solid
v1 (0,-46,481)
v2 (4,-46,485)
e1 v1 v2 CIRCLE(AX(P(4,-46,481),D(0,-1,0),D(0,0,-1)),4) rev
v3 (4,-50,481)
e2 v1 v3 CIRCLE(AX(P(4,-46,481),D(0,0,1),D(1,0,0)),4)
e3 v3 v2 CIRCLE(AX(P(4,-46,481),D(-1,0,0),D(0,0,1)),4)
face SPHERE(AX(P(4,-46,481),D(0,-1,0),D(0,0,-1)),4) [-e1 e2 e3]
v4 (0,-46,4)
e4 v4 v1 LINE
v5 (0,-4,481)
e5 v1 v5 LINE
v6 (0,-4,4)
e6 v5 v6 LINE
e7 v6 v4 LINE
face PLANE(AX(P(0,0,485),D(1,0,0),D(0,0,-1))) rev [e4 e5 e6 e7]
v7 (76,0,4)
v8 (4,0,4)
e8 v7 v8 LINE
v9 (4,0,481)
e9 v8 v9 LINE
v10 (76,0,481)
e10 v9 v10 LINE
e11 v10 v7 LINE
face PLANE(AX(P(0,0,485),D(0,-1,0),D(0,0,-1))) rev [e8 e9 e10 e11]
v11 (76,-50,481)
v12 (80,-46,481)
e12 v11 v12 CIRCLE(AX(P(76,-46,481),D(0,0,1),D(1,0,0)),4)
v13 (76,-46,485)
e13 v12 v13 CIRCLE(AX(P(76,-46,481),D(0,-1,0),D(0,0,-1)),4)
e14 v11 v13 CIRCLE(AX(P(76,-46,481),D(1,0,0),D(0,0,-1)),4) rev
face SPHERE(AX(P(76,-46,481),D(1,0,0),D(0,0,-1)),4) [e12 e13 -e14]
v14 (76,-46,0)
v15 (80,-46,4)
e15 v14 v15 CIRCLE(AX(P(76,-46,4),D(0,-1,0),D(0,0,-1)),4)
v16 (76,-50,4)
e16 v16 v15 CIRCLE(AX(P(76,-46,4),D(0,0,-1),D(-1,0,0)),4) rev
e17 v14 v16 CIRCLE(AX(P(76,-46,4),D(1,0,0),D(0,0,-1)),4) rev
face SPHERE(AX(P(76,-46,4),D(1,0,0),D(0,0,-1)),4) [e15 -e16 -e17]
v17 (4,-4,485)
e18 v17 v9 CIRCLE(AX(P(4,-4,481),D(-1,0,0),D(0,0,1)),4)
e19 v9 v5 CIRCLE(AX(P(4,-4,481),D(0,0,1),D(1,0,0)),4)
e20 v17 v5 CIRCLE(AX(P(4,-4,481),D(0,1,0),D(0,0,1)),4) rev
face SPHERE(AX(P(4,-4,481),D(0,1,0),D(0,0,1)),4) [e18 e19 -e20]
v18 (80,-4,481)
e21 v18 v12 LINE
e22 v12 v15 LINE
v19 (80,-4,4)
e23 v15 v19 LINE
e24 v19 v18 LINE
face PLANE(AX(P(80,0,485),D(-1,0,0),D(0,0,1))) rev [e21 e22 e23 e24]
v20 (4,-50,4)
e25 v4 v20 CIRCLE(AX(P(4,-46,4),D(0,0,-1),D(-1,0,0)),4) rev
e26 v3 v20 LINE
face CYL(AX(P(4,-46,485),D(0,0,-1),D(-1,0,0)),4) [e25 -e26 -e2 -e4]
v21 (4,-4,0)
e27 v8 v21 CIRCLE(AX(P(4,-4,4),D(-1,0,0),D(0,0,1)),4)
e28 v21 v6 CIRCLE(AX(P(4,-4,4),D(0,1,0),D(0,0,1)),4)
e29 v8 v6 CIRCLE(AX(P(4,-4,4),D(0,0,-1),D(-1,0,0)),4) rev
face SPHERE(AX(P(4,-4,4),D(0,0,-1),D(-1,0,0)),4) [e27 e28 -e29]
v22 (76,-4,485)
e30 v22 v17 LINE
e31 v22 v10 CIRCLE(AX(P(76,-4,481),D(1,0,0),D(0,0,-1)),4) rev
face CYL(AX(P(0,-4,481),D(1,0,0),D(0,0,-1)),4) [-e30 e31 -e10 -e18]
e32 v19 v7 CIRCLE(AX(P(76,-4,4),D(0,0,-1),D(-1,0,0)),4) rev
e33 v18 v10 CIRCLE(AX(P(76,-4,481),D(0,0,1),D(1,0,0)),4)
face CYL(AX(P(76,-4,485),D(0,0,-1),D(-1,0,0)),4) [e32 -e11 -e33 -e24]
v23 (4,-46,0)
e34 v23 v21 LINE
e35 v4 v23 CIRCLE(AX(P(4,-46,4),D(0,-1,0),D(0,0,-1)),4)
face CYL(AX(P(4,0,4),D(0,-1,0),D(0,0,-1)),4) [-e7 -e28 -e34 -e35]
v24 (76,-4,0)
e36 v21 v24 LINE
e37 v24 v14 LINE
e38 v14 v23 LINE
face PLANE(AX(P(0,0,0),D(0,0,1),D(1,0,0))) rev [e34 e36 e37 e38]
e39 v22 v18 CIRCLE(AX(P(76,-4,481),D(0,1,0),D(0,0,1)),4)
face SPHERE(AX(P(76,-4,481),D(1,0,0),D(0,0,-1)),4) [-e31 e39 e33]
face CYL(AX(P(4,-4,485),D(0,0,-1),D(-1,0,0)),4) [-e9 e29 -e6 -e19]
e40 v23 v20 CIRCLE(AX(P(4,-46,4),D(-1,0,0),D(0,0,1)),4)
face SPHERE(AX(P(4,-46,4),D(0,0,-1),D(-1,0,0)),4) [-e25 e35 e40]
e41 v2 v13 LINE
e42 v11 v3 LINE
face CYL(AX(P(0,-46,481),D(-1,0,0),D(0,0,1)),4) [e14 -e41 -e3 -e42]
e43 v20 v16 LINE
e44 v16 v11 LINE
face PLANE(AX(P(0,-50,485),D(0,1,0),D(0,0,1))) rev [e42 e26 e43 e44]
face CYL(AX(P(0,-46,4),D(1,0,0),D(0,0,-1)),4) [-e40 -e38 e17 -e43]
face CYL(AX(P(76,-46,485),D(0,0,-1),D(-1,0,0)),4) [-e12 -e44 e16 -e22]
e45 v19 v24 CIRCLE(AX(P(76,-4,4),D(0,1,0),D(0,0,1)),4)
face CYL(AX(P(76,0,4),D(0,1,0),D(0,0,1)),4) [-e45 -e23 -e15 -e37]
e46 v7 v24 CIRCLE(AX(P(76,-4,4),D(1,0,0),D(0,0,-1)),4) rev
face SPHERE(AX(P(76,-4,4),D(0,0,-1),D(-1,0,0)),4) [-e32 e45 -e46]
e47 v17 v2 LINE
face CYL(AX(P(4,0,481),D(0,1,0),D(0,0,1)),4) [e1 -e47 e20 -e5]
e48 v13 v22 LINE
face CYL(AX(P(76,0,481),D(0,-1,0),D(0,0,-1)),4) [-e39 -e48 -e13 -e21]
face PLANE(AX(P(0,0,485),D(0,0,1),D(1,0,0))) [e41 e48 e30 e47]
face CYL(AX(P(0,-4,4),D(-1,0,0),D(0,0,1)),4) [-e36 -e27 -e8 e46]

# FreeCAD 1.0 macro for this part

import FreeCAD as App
import Part
import Sketcher


def add_polygon(sketch, points):
    """Adds a closed chain of lines whose ends are joined by coincident constraints."""
    first, n = sketch.GeometryCount, len(points)
    for a, b in zip(points, points[1:] + points[:1]):
        sketch.addGeometry(Part.LineSegment(App.Vector(*a, 0), App.Vector(*b, 0)), False)
    for i in range(n):
        sketch.addConstraint(Sketcher.Constraint("Coincident", first + i, 2, first + (i + 1) % n, 1))

doc = App.newDocument("Part")
body = doc.addObject("PartDesign::Body", "Body")

# Sketch on XY plane
sketch1 = doc.addObject("Sketcher::SketchObject", "Sketch")
body.addObject(sketch1)
sketch1.AttachmentSupport = (doc.XY_Plane, [""])
sketch1.MapMode = "FlatFace"
add_polygon(sketch1, [(0, 0), (0, -50), (80, -50), (80, 0)])  # lines 0-3
sketch1.addConstraint(Sketcher.Constraint("Vertical", 0))
sketch1.addConstraint(Sketcher.Constraint("Horizontal", 1))
sketch1.addConstraint(Sketcher.Constraint("Vertical", 2))
sketch1.addConstraint(Sketcher.Constraint("Horizontal", 3))
sketch1.addConstraint(Sketcher.Constraint("Coincident", 3, 2, -1, 1))
sketch1.addConstraint(Sketcher.Constraint("DistanceX", 1, 1, 1, 2, 80.0))
sketch1.addConstraint(Sketcher.Constraint("DistanceY", 0, 2, 0, 1, 50.0))
pad1 = doc.addObject("PartDesign::Pad", "Pad")
body.addObject(pad1)
pad1.Profile = sketch1
pad1.Length = 485
doc.recompute()

fillet = doc.addObject("PartDesign::Fillet", "Fillet")
body.addObject(fillet)
fillet.Base = (pad1, ["Edge1"])
fillet.UseAllEdges = True
fillet.Radius = 4

doc.recompute()
